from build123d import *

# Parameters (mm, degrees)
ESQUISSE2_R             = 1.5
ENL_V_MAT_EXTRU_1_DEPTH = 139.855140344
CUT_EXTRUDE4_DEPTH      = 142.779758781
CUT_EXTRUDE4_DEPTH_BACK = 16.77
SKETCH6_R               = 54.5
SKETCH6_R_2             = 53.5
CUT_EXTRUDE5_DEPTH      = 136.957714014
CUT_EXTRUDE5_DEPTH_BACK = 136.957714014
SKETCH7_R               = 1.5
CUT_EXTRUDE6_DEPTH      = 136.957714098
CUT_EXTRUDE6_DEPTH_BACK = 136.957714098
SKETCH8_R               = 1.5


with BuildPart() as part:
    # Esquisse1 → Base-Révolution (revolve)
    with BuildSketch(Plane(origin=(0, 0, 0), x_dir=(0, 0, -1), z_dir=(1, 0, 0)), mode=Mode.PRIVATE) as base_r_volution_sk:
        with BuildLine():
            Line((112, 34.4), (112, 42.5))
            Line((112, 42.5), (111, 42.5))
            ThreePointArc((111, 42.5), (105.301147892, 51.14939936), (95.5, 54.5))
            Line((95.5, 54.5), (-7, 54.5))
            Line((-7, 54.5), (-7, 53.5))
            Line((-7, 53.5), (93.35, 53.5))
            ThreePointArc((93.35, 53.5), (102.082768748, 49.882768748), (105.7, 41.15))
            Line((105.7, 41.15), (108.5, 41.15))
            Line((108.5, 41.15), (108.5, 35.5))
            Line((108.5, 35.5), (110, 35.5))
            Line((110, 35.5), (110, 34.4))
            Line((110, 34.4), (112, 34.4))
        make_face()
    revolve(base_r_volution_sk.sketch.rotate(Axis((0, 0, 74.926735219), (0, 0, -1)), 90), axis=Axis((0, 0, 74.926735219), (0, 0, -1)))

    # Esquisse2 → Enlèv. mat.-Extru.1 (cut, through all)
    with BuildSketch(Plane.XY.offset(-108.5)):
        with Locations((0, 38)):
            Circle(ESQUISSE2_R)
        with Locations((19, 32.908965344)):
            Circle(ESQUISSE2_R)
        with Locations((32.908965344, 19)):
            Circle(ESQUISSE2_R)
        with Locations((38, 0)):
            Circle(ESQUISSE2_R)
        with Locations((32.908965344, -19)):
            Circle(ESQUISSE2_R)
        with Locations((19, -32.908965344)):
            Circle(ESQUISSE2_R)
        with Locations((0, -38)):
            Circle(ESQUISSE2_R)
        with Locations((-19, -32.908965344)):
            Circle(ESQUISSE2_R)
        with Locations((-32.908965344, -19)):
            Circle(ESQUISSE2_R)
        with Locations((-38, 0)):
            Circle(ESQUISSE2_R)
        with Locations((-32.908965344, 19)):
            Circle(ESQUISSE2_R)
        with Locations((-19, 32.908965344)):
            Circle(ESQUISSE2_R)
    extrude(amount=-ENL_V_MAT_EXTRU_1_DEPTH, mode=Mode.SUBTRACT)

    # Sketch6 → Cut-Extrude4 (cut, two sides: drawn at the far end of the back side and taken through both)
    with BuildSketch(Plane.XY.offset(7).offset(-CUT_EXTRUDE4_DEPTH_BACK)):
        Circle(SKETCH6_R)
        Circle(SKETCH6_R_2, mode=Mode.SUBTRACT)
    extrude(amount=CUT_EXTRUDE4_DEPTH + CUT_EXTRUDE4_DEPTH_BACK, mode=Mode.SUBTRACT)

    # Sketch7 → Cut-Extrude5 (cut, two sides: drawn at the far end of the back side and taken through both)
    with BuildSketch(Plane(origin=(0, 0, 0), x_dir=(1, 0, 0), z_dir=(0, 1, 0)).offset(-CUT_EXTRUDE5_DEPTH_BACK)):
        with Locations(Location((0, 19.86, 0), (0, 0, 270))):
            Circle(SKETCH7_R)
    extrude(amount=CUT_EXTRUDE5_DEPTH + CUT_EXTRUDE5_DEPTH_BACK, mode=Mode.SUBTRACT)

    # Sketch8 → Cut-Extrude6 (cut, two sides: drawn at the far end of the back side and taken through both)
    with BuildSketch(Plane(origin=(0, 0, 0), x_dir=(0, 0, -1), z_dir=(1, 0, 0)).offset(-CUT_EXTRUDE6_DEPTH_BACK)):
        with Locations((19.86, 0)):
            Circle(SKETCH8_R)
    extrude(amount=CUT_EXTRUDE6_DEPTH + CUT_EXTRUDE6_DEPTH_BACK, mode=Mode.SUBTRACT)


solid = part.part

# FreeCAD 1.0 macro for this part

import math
import FreeCAD as App
import Part
import Sketcher

doc = App.newDocument("Part")
params = doc.addObject("Spreadsheet::Sheet", "Params")
for row, (alias, value) in enumerate([
    ("sketch1_width", "1 mm"),
    ("sketch1_height", "2 mm"),
    ("sketch1_radius", "12.35 mm"),
    ("sketch1_width2", "8.1 mm"),
    ("sketch1_width3", "1.1 mm"),
    ("revolution_angle", "360 deg"),
    ("sketch2_diameter", "3 mm"),
    ("sketch3_diameter", "109 mm"),
    ("sketch3_diameter2", "107 mm"),
    ("pocket2_length", "142.779759 mm"),
    ("pocket2_length2", "16.77 mm"),
    ("sketch4_diameter", "3 mm"),
    ("sketch5_diameter", "3 mm"),
], start=1):
    params.set(f"A{row}", alias)
    params.set(f"B{row}", "=" + value)
    params.setAlias(f"B{row}", alias)

body = doc.addObject("PartDesign::Body", "Body")

sketch1 = body.newObject("Sketcher::SketchObject", "Sketch")
sketch1.AttachmentSupport = (doc.getObject("YZ_Plane"), [""])
sketch1.MapMode = "FlatFace"
sketch1.addGeometry([
    Part.LineSegment(App.Vector(34.4, -112, 0), App.Vector(42.5, -112, 0)),
    Part.LineSegment(App.Vector(42.5, -112, 0), App.Vector(42.5, -111, 0)),
    Part.ArcOfCircle(Part.Circle(App.Vector(38.5, -95.5, 0), App.Vector(0, 0, 1), 16), math.radians(-75), math.radians(0)),
    Part.LineSegment(App.Vector(54.5, -95.5, 0), App.Vector(54.5, 7, 0)),
    Part.LineSegment(App.Vector(54.5, 7, 0), App.Vector(53.5, 7, 0)),
    Part.LineSegment(App.Vector(53.5, 7, 0), App.Vector(53.5, -93.3, 0)),
    Part.ArcOfCircle(Part.Circle(App.Vector(41.2, -93.4, 0), App.Vector(0, 0, 1), 12.3), math.radians(-90), math.radians(0)),
    Part.LineSegment(App.Vector(41.1, -105.7, 0), App.Vector(41.1, -108.5, 0)),
    Part.LineSegment(App.Vector(41.1, -108.5, 0), App.Vector(35.5, -108.5, 0)),
    Part.LineSegment(App.Vector(35.5, -108.5, 0), App.Vector(35.5, -110, 0)),
    Part.LineSegment(App.Vector(35.5, -110, 0), App.Vector(34.4, -110, 0)),
    Part.LineSegment(App.Vector(34.4, -110, 0), App.Vector(34.4, -112, 0)),
], False)
sketch1.addConstraint([
    Sketcher.Constraint("Coincident", 0, 2, 1, 1),
    Sketcher.Constraint("Coincident", 1, 2, 2, 1),
    Sketcher.Constraint("Tangent", 2, 2, 3, 1),
    Sketcher.Constraint("Coincident", 3, 2, 4, 1),
    Sketcher.Constraint("Coincident", 4, 2, 5, 1),
    Sketcher.Constraint("Tangent", 5, 2, 6, 2),
    Sketcher.Constraint("Coincident", 6, 1, 7, 1),
    Sketcher.Constraint("Coincident", 7, 2, 8, 1),
    Sketcher.Constraint("Coincident", 8, 2, 9, 1),
    Sketcher.Constraint("Coincident", 9, 2, 10, 1),
    Sketcher.Constraint("Coincident", 10, 2, 11, 1),
    Sketcher.Constraint("Coincident", 11, 2, 0, 1),
    Sketcher.Constraint("Horizontal", 0),
    Sketcher.Constraint("Vertical", 1),
    Sketcher.Constraint("Vertical", 3),
    Sketcher.Constraint("Horizontal", 4),
    Sketcher.Constraint("Vertical", 5),
    Sketcher.Constraint("Vertical", 7),
    Sketcher.Constraint("Horizontal", 8),
    Sketcher.Constraint("Vertical", 9),
    Sketcher.Constraint("Horizontal", 10),
    Sketcher.Constraint("Vertical", 11),
    Sketcher.Constraint("Equal", 4, 1),
    Sketcher.Constraint("DistanceX", 4, 2, 4, 1, 1.0),
    Sketcher.Constraint("DistanceY", 11, 2, 11, 1, 2.0),
    Sketcher.Constraint("Radius", 6, 12.35),
    Sketcher.Constraint("DistanceX", 0, 1, 0, 2, 8.1),
    Sketcher.Constraint("DistanceX", 10, 2, 10, 1, 1.1),
    Sketcher.Constraint("DistanceY", 3, 1, 3, 2, 102.5),
    Sketcher.Constraint("DistanceY", 7, 2, 7, 1, 2.8),
    Sketcher.Constraint("DistanceY", 9, 2, 9, 1, 1.5),
    Sketcher.Constraint("DistanceY", 0, 2, -1, 1, 112.0),
    Sketcher.Constraint("DistanceY", -1, 1, 3, 2, 7.0),
    Sketcher.Constraint("DistanceX", 1, 2, 2, 2, 12.0),
    Sketcher.Constraint("DistanceX", 8, 2, 8, 1, 5.65),
    Sketcher.Constraint("DistanceX", -1, 1, 0, 2, 42.5),
])
sketch1.setExpression("Constraints[23]", "Params.sketch1_width")
sketch1.setExpression("Constraints[24]", "Params.sketch1_height")
sketch1.setExpression("Constraints[25]", "Params.sketch1_radius")
sketch1.setExpression("Constraints[26]", "Params.sketch1_width2")
sketch1.setExpression("Constraints[27]", "Params.sketch1_width3")
revolution = body.newObject("PartDesign::Revolution", "Revolution")
revolution.Profile = sketch1
revolution.ReferenceAxis = (sketch1, ["V_Axis"])
revolution.setExpression("Angle", "Params.revolution_angle")

sketch2 = body.newObject("Sketcher::SketchObject", "Sketch001")
sketch2.AttachmentSupport = (doc.getObject("XY_Plane"), [""])
sketch2.MapMode = "FlatFace"
sketch2.AttachmentOffset = App.Placement(App.Vector(0, 0, -108.5), App.Rotation())
sketch2.addGeometry([
    Part.Circle(App.Vector(0, 38, 0), App.Vector(0, 0, 1), 1.5),
    Part.Circle(App.Vector(19, 32.9, 0), App.Vector(0, 0, 1), 1.5),
    Part.Circle(App.Vector(32.9, 19, 0), App.Vector(0, 0, 1), 1.5),
    Part.Circle(App.Vector(38, 0, 0), App.Vector(0, 0, 1), 1.5),
    Part.Circle(App.Vector(32.9, -19, 0), App.Vector(0, 0, 1), 1.5),
    Part.Circle(App.Vector(19, -32.9, 0), App.Vector(0, 0, 1), 1.5),
    Part.Circle(App.Vector(0, -38, 0), App.Vector(0, 0, 1), 1.5),
    Part.Circle(App.Vector(-19, -32.9, 0), App.Vector(0, 0, 1), 1.5),
    Part.Circle(App.Vector(-32.9, -19, 0), App.Vector(0, 0, 1), 1.5),
    Part.Circle(App.Vector(-38, 0, 0), App.Vector(0, 0, 1), 1.5),
    Part.Circle(App.Vector(-32.9, 19, 0), App.Vector(0, 0, 1), 1.5),
    Part.Circle(App.Vector(-19, 32.9, 0), App.Vector(0, 0, 1), 1.5),
], False)
sketch2.addConstraint([
    Sketcher.Constraint("Equal", 0, 1),
    Sketcher.Constraint("Equal", 1, 2),
    Sketcher.Constraint("Equal", 2, 3),
    Sketcher.Constraint("Equal", 3, 4),
    Sketcher.Constraint("Equal", 4, 5),
    Sketcher.Constraint("Equal", 5, 6),
    Sketcher.Constraint("Equal", 6, 7),
    Sketcher.Constraint("Equal", 7, 8),
    Sketcher.Constraint("Equal", 8, 9),
    Sketcher.Constraint("Equal", 9, 10),
    Sketcher.Constraint("Equal", 10, 11),
    Sketcher.Constraint("Symmetric", 0, 3, 6, 3, -1, 1),
    Sketcher.Constraint("Symmetric", 1, 3, 7, 3, -1, 1),
    Sketcher.Constraint("Symmetric", 2, 3, 8, 3, -1, 1),
    Sketcher.Constraint("Symmetric", 3, 3, 9, 3, -1, 1),
    Sketcher.Constraint("Symmetric", 4, 3, 10, 3, -1, 1),
    Sketcher.Constraint("Symmetric", 5, 3, 11, 3, -1, 1),
    Sketcher.Constraint("Symmetric", 5, 3, 7, 3, -2),
    Sketcher.Constraint("Symmetric", 4, 3, 8, 3, -2),
    Sketcher.Constraint("PointOnObject", 0, 3, -2),
    Sketcher.Constraint("PointOnObject", 3, 3, -1),
    Sketcher.Constraint("Diameter", 0, 3.0),
    Sketcher.Constraint("DistanceY", -1, 1, 0, 3, 38.0),
    Sketcher.Constraint("DistanceX", -1, 1, 1, 3, 19.0),
    Sketcher.Constraint("DistanceY", -1, 1, 2, 3, 19.0),
    Sketcher.Constraint("DistanceX", -1, 1, 3, 3, 38.0),
    Sketcher.Constraint("DistanceY", 5, 3, 1, 3, 65.817931),
    Sketcher.Constraint("DistanceX", 8, 3, 4, 3, 65.817931),
])
sketch2.setExpression("Constraints[21]", "Params.sketch2_diameter")
pocket1 = body.newObject("PartDesign::Pocket", "Pocket")
pocket1.Profile = sketch2
pocket1.Type = "ThroughAll"

sketch3 = body.newObject("Sketcher::SketchObject", "Sketch002")
sketch3.AttachmentSupport = (doc.getObject("XY_Plane"), [""])
sketch3.MapMode = "FlatFace"
sketch3.AttachmentOffset = App.Placement(App.Vector(0, 0, 7), App.Rotation())
sketch3.addGeometry([
    Part.Circle(App.Vector(0, 0, 0), App.Vector(0, 0, 1), 54),
    Part.Circle(App.Vector(0, 0, 0), App.Vector(0, 0, 1), 54),
], False)
sketch3.addConstraint([
    Sketcher.Constraint("Coincident", 0, 3, -1, 1),
    Sketcher.Constraint("Coincident", 1, 3, -1, 1),
    Sketcher.Constraint("Diameter", 0, 109.0),
    Sketcher.Constraint("Diameter", 1, 107.0),
])
sketch3.setExpression("Constraints[2]", "Params.sketch3_diameter")
sketch3.setExpression("Constraints[3]", "Params.sketch3_diameter2")
pocket2 = body.newObject("PartDesign::Pocket", "Pocket001")
pocket2.Profile = sketch3
pocket2.Type = "TwoLengths"
pocket2.setExpression("Length", "Params.pocket2_length")
pocket2.setExpression("Length2", "Params.pocket2_length2")
pocket2.Reversed = True

sketch4 = body.newObject("Sketcher::SketchObject", "Sketch003")
sketch4.AttachmentSupport = (doc.getObject("XZ_Plane"), [""])
sketch4.MapMode = "FlatFace"
sketch4.addGeometry(Part.Circle(App.Vector(0, -19.9, 0), App.Vector(0, 0, 1), 1.5), False)
sketch4.addConstraint([
    Sketcher.Constraint("PointOnObject", 0, 3, -2),
    Sketcher.Constraint("Diameter", 0, 3.0),
    Sketcher.Constraint("DistanceY", 0, 3, -1, 1, 19.86),
])
sketch4.setExpression("Constraints[1]", "Params.sketch4_diameter")
pocket3 = body.newObject("PartDesign::Pocket", "Pocket002")
pocket3.Profile = sketch4
pocket3.Type = "ThroughAll"
pocket3.Midplane = True

sketch5 = body.newObject("Sketcher::SketchObject", "Sketch004")
sketch5.AttachmentSupport = (doc.getObject("YZ_Plane"), [""])
sketch5.MapMode = "FlatFace"
sketch5.addGeometry(Part.Circle(App.Vector(0, -19.9, 0), App.Vector(0, 0, 1), 1.5), False)
sketch5.addConstraint([
    Sketcher.Constraint("PointOnObject", 0, 3, -2),
    Sketcher.Constraint("Diameter", 0, 3.0),
    Sketcher.Constraint("DistanceY", 0, 3, -1, 1, 19.86),
])
sketch5.setExpression("Constraints[1]", "Params.sketch5_diameter")
pocket4 = body.newObject("PartDesign::Pocket", "Pocket003")
pocket4.Profile = sketch5
pocket4.Type = "ThroughAll"
pocket4.Midplane = True

doc.recompute()
